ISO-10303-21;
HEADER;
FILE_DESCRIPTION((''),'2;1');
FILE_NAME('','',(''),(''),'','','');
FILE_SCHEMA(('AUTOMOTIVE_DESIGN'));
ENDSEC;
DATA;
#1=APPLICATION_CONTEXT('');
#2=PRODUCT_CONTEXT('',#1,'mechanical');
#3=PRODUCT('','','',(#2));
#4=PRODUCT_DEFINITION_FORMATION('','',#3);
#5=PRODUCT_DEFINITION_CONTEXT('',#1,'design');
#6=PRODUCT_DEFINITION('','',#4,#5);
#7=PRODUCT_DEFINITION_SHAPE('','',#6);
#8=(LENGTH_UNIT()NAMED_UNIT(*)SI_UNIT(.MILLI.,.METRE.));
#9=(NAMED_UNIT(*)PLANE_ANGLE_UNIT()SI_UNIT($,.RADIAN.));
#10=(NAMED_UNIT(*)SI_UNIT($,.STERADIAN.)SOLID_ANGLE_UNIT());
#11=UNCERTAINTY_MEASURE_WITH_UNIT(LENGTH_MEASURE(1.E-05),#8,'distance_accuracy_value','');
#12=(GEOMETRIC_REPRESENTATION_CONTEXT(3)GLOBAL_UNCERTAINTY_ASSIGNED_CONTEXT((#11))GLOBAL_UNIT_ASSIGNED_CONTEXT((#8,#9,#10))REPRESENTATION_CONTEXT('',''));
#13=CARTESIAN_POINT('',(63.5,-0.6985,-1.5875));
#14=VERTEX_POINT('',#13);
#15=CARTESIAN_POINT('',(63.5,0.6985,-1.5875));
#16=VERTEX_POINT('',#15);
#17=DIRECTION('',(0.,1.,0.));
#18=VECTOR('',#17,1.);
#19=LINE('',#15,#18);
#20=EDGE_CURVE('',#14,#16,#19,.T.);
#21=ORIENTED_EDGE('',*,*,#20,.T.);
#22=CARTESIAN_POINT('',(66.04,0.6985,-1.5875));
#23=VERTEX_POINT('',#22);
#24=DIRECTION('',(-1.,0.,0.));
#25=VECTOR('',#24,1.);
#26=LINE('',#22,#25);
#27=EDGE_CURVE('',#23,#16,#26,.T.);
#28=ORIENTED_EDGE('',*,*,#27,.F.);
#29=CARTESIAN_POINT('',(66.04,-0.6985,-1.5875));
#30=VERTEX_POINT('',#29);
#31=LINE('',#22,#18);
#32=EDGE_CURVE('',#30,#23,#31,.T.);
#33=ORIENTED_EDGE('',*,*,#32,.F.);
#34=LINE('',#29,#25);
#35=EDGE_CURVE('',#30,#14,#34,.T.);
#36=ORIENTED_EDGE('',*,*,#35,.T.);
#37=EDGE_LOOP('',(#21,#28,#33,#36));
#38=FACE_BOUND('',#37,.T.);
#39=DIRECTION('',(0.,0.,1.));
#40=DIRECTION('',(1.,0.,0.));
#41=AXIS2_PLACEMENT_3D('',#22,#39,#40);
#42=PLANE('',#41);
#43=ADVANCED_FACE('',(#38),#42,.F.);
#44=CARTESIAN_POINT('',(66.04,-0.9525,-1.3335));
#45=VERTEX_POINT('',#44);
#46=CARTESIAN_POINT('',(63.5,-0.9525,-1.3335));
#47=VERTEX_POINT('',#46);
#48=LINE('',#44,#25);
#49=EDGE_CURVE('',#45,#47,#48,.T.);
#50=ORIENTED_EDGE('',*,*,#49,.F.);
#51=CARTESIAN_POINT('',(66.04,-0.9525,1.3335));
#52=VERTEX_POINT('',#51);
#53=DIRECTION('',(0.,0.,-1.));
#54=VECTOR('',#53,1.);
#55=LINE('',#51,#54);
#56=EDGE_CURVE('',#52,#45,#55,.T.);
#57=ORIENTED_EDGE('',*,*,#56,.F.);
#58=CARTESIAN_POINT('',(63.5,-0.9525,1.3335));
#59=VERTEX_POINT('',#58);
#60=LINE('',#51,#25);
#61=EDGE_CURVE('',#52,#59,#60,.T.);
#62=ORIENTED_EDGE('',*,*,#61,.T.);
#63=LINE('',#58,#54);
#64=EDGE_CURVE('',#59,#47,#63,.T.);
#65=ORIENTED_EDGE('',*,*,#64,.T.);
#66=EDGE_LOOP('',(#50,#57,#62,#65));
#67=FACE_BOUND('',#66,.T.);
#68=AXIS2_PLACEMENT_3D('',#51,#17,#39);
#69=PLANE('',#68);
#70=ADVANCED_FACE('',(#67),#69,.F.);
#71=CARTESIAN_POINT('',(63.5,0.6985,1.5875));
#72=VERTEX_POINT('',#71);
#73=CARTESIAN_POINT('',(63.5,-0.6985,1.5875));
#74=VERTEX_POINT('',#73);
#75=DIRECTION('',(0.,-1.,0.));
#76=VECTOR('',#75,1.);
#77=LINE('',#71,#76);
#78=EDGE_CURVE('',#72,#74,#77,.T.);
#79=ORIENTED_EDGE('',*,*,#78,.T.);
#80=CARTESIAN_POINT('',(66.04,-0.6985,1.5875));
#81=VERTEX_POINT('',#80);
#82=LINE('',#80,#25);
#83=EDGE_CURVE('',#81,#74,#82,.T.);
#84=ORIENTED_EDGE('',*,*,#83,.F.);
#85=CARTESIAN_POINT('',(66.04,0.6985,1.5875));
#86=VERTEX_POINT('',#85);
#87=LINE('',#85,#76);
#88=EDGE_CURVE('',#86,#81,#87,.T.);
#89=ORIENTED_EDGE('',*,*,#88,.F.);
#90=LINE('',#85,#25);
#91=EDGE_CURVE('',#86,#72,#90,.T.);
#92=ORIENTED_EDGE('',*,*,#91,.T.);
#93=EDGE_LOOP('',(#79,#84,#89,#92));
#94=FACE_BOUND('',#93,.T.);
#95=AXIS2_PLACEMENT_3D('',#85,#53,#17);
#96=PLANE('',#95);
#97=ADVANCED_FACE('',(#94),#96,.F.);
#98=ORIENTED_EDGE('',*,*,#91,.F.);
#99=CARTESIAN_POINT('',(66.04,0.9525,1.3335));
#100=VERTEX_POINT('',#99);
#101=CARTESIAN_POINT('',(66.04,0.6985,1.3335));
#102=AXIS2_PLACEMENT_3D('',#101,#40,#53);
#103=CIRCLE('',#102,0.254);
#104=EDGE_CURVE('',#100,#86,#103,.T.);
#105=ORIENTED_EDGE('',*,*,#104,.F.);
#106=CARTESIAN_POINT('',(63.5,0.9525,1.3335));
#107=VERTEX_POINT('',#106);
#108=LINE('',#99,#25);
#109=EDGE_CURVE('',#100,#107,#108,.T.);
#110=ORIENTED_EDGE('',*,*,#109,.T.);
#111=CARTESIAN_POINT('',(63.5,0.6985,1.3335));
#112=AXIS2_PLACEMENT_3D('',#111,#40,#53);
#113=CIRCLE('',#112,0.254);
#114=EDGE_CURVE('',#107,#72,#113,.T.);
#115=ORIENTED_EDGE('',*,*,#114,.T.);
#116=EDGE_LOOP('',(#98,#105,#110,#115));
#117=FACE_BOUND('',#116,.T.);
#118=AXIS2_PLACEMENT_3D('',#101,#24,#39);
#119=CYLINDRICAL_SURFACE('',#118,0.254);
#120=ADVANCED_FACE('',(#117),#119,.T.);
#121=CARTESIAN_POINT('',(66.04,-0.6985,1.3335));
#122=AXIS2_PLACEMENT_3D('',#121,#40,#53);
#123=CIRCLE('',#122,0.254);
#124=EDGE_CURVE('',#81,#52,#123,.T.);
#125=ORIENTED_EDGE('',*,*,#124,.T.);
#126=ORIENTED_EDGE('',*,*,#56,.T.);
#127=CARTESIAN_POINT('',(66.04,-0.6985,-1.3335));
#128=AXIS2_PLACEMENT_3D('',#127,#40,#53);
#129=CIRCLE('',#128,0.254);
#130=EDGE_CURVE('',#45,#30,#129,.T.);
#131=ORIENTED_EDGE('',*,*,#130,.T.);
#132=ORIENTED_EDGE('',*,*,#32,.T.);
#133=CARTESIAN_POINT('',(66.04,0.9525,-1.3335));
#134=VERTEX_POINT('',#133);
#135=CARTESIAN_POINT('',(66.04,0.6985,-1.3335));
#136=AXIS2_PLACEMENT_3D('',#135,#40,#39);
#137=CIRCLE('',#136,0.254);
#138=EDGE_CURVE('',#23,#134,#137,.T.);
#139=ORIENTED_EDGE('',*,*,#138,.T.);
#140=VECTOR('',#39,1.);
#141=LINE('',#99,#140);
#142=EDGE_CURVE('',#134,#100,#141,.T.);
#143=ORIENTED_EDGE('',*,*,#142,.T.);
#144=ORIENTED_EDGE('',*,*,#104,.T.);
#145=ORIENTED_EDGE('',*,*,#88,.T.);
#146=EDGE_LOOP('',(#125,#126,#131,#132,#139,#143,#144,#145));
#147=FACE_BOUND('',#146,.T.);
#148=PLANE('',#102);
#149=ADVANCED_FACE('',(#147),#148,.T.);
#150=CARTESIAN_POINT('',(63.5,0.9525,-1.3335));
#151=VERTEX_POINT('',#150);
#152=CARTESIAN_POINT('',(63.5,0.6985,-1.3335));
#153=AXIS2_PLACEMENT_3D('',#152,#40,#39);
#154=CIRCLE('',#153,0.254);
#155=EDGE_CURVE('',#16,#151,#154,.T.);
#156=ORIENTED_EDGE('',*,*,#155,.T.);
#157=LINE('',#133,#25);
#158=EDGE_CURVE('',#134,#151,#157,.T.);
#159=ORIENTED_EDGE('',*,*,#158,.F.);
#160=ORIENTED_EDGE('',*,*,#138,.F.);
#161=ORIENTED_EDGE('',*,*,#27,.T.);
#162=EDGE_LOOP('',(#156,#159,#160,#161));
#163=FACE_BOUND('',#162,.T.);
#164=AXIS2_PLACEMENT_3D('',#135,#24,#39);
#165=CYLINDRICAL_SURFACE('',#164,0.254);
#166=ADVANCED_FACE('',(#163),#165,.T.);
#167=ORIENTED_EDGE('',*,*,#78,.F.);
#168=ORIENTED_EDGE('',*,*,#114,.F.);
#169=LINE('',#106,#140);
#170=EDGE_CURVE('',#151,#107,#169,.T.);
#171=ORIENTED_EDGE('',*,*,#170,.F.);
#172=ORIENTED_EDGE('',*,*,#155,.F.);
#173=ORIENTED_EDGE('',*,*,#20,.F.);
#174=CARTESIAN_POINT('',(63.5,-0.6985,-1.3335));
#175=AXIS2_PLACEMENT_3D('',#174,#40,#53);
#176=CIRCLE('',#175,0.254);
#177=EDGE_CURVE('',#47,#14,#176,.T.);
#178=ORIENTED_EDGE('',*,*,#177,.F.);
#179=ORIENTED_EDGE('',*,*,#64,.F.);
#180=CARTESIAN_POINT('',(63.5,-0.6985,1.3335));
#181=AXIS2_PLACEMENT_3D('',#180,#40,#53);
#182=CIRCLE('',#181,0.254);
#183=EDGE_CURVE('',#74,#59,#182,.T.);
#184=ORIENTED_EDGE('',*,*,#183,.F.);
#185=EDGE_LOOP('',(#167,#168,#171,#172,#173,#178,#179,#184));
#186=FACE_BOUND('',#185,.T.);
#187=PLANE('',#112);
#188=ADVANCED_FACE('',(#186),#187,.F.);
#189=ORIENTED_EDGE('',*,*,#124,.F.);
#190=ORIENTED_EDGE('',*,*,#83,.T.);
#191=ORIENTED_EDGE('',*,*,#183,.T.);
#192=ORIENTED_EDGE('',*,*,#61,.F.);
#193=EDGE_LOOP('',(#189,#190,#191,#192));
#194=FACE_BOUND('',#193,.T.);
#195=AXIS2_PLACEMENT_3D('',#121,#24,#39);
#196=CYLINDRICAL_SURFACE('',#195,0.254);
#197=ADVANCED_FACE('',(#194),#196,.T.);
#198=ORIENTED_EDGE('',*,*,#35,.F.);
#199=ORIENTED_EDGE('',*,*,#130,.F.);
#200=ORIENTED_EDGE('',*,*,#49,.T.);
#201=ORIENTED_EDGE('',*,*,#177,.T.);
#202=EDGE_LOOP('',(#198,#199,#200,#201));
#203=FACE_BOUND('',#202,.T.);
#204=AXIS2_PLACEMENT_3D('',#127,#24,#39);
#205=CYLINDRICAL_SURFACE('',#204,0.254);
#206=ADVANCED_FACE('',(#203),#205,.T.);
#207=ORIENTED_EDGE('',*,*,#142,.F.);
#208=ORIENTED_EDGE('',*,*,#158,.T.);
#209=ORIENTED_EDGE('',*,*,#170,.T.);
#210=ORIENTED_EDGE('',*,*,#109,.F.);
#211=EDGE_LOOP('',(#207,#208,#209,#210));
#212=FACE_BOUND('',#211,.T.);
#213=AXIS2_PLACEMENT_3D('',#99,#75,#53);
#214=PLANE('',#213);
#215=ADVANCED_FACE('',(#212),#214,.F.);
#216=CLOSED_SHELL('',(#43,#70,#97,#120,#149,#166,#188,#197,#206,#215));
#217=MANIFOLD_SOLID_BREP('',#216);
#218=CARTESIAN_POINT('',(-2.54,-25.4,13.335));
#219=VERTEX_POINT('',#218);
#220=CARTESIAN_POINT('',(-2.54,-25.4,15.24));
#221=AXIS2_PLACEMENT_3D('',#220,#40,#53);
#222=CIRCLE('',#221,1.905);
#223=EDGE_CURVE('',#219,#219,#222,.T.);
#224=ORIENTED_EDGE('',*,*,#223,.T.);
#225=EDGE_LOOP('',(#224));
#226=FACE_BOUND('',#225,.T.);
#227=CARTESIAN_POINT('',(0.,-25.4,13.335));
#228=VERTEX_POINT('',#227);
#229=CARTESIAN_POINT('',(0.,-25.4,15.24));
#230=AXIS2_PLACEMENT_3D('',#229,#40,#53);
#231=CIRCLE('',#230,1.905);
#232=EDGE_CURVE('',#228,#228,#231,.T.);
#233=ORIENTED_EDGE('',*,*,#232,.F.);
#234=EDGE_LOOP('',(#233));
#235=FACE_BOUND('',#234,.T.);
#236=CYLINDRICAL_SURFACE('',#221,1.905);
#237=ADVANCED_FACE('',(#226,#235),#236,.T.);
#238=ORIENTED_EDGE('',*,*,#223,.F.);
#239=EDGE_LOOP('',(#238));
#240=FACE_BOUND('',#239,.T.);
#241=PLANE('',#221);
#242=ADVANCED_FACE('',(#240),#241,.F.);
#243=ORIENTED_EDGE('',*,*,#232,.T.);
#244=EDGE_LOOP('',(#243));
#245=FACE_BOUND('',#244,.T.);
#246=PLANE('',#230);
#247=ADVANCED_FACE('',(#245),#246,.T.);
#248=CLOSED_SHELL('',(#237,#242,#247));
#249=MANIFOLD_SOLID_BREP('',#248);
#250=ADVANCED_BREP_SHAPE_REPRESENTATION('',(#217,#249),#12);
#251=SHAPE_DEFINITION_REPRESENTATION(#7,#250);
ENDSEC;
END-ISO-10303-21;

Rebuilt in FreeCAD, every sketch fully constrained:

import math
import FreeCAD as App
import Part
import Sketcher
from FreeCAD import Vector
Q = App.Units.Quantity

doc = App.newDocument("Part")
body = doc.addObject("PartDesign::Body", "Body")

# Sketch on YZ plane
sketch1 = body.newObject("Sketcher::SketchObject", "Sketch")
sketch1.AttachmentSupport = (doc.getObject("YZ_Plane"), [""])
sketch1.MapMode = "FlatFace"
sketch1.addGeometry(Part.Circle(Vector(-25.4, 15.2, 0), Vector(0, 0, 1), 1.9), False)
sketch1.addConstraint([
    Sketcher.Constraint("Diameter", 0, Q("0.15 in")),
    Sketcher.Constraint("DistanceX", 0, 3, -1, 1, Q("1 in")),
    Sketcher.Constraint("DistanceY", -1, 1, 0, 3, Q("0.6 in")),
])
pad1 = body.newObject("PartDesign::Pad", "Pad")
pad1.Profile = sketch1
pad1.Length = Q("0.1 in")
pad1.Reversed = True
body2 = doc.addObject("PartDesign::Body", "Body001")

# Sketch on YZ plane
sketch2 = body2.newObject("Sketcher::SketchObject", "Sketch001")
sketch2.AttachmentSupport = (doc.getObject("YZ_Plane001"), [""])
sketch2.MapMode = "FlatFace"
sketch2.AttachmentOffset = App.Placement(Vector(0, 0, 2.5 * 25.4), App.Rotation())
sketch2.addGeometry([
    Part.LineSegment(Vector(0.95, -1.33, 0), Vector(0.95, 1.33, 0)),  # 0
    Part.ArcOfCircle(Part.Circle(Vector(0.7, 1.33, 0), Vector(0, 0, 1), 0.25), math.radians(0), math.radians(90)),  # 1
    Part.LineSegment(Vector(0.7, 1.59, 0), Vector(-0.7, 1.59, 0)),  # 2
    Part.ArcOfCircle(Part.Circle(Vector(-0.7, 1.33, 0), Vector(0, 0, 1), 0.25), math.radians(90), math.radians(180)),  # 3
    Part.LineSegment(Vector(-0.95, 1.33, 0), Vector(-0.95, -1.33, 0)),  # 4
    Part.ArcOfCircle(Part.Circle(Vector(-0.7, -1.33, 0), Vector(0, 0, 1), 0.25), math.radians(-180), math.radians(-90)),  # 5
    Part.LineSegment(Vector(-0.7, -1.59, 0), Vector(0.7, -1.59, 0)),  # 6
    Part.ArcOfCircle(Part.Circle(Vector(0.7, -1.33, 0), Vector(0, 0, 1), 0.25), math.radians(-90), math.radians(0)),  # 7
], False)
sketch2.addConstraint([
    Sketcher.Constraint("Tangent", 0, 2, 1, 1),
    Sketcher.Constraint("Tangent", 1, 2, 2, 1),
    Sketcher.Constraint("Tangent", 2, 2, 3, 1),
    Sketcher.Constraint("Tangent", 3, 2, 4, 1),
    Sketcher.Constraint("Tangent", 4, 2, 5, 1),
    Sketcher.Constraint("Tangent", 5, 2, 6, 1),
    Sketcher.Constraint("Tangent", 6, 2, 7, 1),
    Sketcher.Constraint("Tangent", 7, 2, 0, 1),
    Sketcher.Constraint("Vertical", 0),
    Sketcher.Constraint("Horizontal", 2),
    Sketcher.Constraint("Vertical", 4),
    Sketcher.Constraint("Horizontal", 6),
    Sketcher.Constraint("Equal", 1, 3),
    Sketcher.Constraint("Equal", 3, 5),
    Sketcher.Constraint("Equal", 5, 7),
    Sketcher.Constraint("Symmetric", 1, 3, 5, 3, -1, 1),
    Sketcher.Constraint("Radius", 1, Q("0.01 in")),
    Sketcher.Constraint("DistanceX", 2, 2, 2, 1, Q("0.055 in")),
    Sketcher.Constraint("DistanceY", 0, 1, 0, 2, Q("0.105 in")),
])
pad2 = body2.newObject("PartDesign::Pad", "Pad001")
pad2.Profile = sketch2
pad2.Length = Q("0.1 in")

doc.recompute()
